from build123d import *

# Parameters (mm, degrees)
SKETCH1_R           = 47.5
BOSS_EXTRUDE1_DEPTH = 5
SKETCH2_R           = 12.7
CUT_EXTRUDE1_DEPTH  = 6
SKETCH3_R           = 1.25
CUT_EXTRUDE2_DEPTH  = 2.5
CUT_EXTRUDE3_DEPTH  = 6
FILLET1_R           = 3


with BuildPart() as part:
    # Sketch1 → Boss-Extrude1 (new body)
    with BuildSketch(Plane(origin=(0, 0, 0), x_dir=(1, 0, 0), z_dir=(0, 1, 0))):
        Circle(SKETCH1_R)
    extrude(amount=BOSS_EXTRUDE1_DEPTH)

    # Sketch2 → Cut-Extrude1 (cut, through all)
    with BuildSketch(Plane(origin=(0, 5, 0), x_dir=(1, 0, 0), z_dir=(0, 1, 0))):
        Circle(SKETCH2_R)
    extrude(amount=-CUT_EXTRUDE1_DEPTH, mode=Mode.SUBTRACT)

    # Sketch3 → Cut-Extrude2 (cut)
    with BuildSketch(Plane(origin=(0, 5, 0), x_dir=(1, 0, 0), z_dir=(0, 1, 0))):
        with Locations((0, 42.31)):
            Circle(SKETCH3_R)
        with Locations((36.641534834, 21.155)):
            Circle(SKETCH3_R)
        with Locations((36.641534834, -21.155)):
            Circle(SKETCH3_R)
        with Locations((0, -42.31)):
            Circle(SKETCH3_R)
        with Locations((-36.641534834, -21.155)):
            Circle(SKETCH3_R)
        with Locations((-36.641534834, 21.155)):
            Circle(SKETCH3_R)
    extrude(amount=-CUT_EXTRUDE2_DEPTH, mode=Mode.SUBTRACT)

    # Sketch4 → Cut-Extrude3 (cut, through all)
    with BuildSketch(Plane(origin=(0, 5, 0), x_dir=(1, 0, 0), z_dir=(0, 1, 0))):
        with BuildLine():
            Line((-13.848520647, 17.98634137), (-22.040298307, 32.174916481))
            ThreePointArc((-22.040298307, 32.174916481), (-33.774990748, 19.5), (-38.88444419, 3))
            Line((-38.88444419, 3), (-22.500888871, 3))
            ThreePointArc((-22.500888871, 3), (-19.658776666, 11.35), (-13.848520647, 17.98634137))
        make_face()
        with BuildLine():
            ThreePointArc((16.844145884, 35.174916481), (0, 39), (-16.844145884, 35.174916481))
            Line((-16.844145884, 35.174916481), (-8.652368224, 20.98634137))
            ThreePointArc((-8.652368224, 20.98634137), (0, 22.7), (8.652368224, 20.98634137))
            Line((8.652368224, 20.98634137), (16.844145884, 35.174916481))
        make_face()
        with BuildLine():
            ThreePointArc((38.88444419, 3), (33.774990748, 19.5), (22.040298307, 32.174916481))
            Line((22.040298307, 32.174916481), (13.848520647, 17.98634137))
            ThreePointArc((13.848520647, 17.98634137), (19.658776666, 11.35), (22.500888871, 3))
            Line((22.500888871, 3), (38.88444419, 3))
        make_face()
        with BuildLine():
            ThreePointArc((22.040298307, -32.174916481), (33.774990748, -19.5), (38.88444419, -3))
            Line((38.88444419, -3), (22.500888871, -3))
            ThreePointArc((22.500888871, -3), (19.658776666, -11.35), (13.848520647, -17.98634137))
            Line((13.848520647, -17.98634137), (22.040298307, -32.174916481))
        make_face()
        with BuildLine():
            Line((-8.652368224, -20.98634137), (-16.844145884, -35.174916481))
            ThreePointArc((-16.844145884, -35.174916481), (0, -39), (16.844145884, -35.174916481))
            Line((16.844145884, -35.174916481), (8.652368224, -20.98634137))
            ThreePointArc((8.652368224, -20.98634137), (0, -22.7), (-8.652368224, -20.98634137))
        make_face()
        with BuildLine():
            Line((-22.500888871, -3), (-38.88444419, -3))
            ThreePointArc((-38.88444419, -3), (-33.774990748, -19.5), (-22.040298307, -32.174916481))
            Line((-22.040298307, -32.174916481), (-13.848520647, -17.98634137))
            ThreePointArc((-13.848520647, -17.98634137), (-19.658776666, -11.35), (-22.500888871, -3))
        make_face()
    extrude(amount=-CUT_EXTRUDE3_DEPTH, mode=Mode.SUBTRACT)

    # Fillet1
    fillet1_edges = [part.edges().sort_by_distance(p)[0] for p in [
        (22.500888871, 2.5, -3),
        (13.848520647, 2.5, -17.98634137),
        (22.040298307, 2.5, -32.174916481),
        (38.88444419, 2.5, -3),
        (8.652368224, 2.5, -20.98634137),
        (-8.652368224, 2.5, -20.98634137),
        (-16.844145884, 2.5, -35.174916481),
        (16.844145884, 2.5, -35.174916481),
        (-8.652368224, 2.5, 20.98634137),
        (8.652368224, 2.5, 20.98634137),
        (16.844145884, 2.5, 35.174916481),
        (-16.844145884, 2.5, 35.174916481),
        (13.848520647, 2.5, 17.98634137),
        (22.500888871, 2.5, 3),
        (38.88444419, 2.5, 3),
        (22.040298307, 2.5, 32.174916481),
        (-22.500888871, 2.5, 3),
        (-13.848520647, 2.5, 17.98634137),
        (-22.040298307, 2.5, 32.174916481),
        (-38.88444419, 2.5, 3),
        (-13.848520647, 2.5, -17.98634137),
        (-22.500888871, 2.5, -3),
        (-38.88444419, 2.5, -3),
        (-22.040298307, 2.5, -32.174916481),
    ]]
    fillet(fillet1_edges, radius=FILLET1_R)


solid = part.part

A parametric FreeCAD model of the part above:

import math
import FreeCAD as App
import Part
import Sketcher
from FreeCAD import Vector
Q = App.Units.Quantity


def edges_at(feature, points):
    """Names of the edges that pass closest to the given points."""
    edges = feature.Shape.Edges
    near = lambda p: min(range(len(edges)), key=lambda i: edges[i].distToShape(Part.Vertex(*p))[0])
    return sorted({f"Edge{near(p) + 1}" for p in points})

doc = App.newDocument("Part")
body = doc.addObject("PartDesign::Body", "Body")

sketch1 = body.newObject("Sketcher::SketchObject", "Sketch")
sketch1.AttachmentSupport = (doc.getObject("XZ_Plane"), [""])
sketch1.MapMode = "FlatFace"
sketch1.addGeometry(Part.Circle(Vector(0, 0, 0), Vector(0, 0, 1), 47.5), False)
sketch1.addConstraint([
    Sketcher.Constraint("Coincident", 0, 3, -1, 1),
    Sketcher.Constraint("Diameter", 0, 95.0),
])
pad1 = body.newObject("PartDesign::Pad", "Pad")
pad1.Profile = sketch1
pad1.Length = 5
pad1.Reversed = True

sketch2 = body.newObject("Sketcher::SketchObject", "Sketch001")
sketch2.AttachmentSupport = (doc.getObject("XZ_Plane"), [""])
sketch2.MapMode = "FlatFace"
sketch2.AttachmentOffset = App.Placement(Vector(0, 0, -5), App.Rotation())
sketch2.addGeometry(Part.Circle(Vector(0, 0, 0), Vector(0, 0, 1), 12.7), False)
sketch2.addConstraint([
    Sketcher.Constraint("Coincident", 0, 3, -1, 1),
    Sketcher.Constraint("Diameter", 0, 25.4),
])
pocket1 = body.newObject("PartDesign::Pocket", "Pocket")
pocket1.Profile = sketch2
pocket1.Type = "ThroughAll"
pocket1.Reversed = True

sketch3 = body.newObject("Sketcher::SketchObject", "Sketch002")
sketch3.AttachmentSupport = (doc.getObject("XZ_Plane"), [""])
sketch3.MapMode = "FlatFace"
sketch3.AttachmentOffset = App.Placement(Vector(0, 0, -5), App.Rotation())
sketch3.addGeometry([
    Part.Circle(Vector(0, -42.31, 0), Vector(0, 0, 1), 1.25),
    Part.Circle(Vector(36.641535, -21.155, 0), Vector(0, 0, 1), 1.25),
    Part.Circle(Vector(36.641535, 21.155, 0), Vector(0, 0, 1), 1.25),
    Part.Circle(Vector(0, 42.31, 0), Vector(0, 0, 1), 1.25),
    Part.Circle(Vector(-36.641535, 21.155, 0), Vector(0, 0, 1), 1.25),
    Part.Circle(Vector(-36.641535, -21.155, 0), Vector(0, 0, 1), 1.25),
], False)
sketch3.addConstraint([
    Sketcher.Constraint("Equal", 0, 1),
    Sketcher.Constraint("Equal", 1, 2),
    Sketcher.Constraint("Equal", 2, 3),
    Sketcher.Constraint("Equal", 3, 4),
    Sketcher.Constraint("Equal", 4, 5),
    Sketcher.Constraint("Symmetric", 0, 3, 3, 3, -1, 1),
    Sketcher.Constraint("Symmetric", 1, 3, 4, 3, -1, 1),
    Sketcher.Constraint("Symmetric", 2, 3, 5, 3, -1, 1),
    Sketcher.Constraint("Symmetric", 2, 3, 4, 3, -2),
    Sketcher.Constraint("PointOnObject", 0, 3, -2),
    Sketcher.Constraint("Diameter", 0, 2.5),
    Sketcher.Constraint("DistanceY", 0, 3, -1, 1, 42.31),
    Sketcher.Constraint("DistanceY", 1, 3, 2, 3, 42.31),
    Sketcher.Constraint("DistanceX", 4, 3, 2, 3, 73.28307),
])
pocket2 = body.newObject("PartDesign::Pocket", "Pocket001")
pocket2.Profile = sketch3
pocket2.Length = 2.5
pocket2.Reversed = True

sketch4 = body.newObject("Sketcher::SketchObject", "Sketch003")
sketch4.AttachmentSupport = (doc.getObject("XZ_Plane"), [""])
sketch4.MapMode = "FlatFace"
sketch4.AttachmentOffset = App.Placement(Vector(0, 0, -5), App.Rotation())
sketch4.addGeometry([
    Part.LineSegment(Vector(-13.848521, -17.986341, 0), Vector(-22.040298, -32.174916, 0)),
    Part.ArcOfCircle(Part.Circle(Vector(0, 0, 0), Vector(0, 0, 1), 39), math.radians(-175.588274), math.radians(-124.411726)),
    Part.LineSegment(Vector(-38.884444, -3, 0), Vector(-22.500889, -3, 0)),
    Part.ArcOfCircle(Part.Circle(Vector(0, 0, 0), Vector(0, 0, 1), 22.7), math.radians(-172.405653), math.radians(-127.594347)),
    Part.ArcOfCircle(Part.Circle(Vector(0, 0, 0), Vector(0, 0, 1), 39), math.radians(-115.588274), math.radians(-64.411726)),
    Part.LineSegment(Vector(-16.844146, -35.174916, 0), Vector(-8.652368, -20.986341, 0)),
    Part.ArcOfCircle(Part.Circle(Vector(0, 0, 0), Vector(0, 0, 1), 22.7), math.radians(-112.405653), math.radians(-67.594347)),
    Part.LineSegment(Vector(8.652368, -20.986341, 0), Vector(16.844146, -35.174916, 0)),
    Part.ArcOfCircle(Part.Circle(Vector(0, 0, 0), Vector(0, 0, 1), 39), math.radians(-55.588274), math.radians(-4.411726)),
    Part.LineSegment(Vector(22.040298, -32.174916, 0), Vector(13.848521, -17.986341, 0)),
    Part.ArcOfCircle(Part.Circle(Vector(0, 0, 0), Vector(0, 0, 1), 22.7), math.radians(-52.405653), math.radians(-7.594347)),
    Part.LineSegment(Vector(22.500889, -3, 0), Vector(38.884444, -3, 0)),
    Part.ArcOfCircle(Part.Circle(Vector(0, 0, 0), Vector(0, 0, 1), 39), math.radians(4.411726), math.radians(55.588274)),
    Part.LineSegment(Vector(38.884444, 3, 0), Vector(22.500889, 3, 0)),
    Part.ArcOfCircle(Part.Circle(Vector(0, 0, 0), Vector(0, 0, 1), 22.7), math.radians(7.594347), math.radians(52.405653)),
    Part.LineSegment(Vector(13.848521, 17.986341, 0), Vector(22.040298, 32.174916, 0)),
    Part.LineSegment(Vector(-8.652368, 20.986341, 0), Vector(-16.844146, 35.174916, 0)),
    Part.ArcOfCircle(Part.Circle(Vector(0, 0, 0), Vector(0, 0, 1), 39), math.radians(64.411726), math.radians(115.588274)),
    Part.LineSegment(Vector(16.844146, 35.174916, 0), Vector(8.652368, 20.986341, 0)),
    Part.ArcOfCircle(Part.Circle(Vector(0, 0, 0), Vector(0, 0, 1), 22.7), math.radians(67.594347), math.radians(112.405653)),
    Part.LineSegment(Vector(-22.500889, 3, 0), Vector(-38.884444, 3, 0)),
    Part.ArcOfCircle(Part.Circle(Vector(0, 0, 0), Vector(0, 0, 1), 39), math.radians(124.411726), math.radians(175.588274)),
    Part.LineSegment(Vector(-22.040298, 32.174916, 0), Vector(-13.848521, 17.986341, 0)),
    Part.ArcOfCircle(Part.Circle(Vector(0, 0, 0), Vector(0, 0, 1), 22.7), math.radians(127.594347), math.radians(172.405653)),
], False)
sketch4.addConstraint([
    Sketcher.Constraint("Coincident", 0, 2, 1, 2),
    Sketcher.Constraint("Coincident", 1, 1, 2, 1),
    Sketcher.Constraint("Coincident", 2, 2, 3, 1),
    Sketcher.Constraint("Coincident", 3, 2, 0, 1),
    Sketcher.Constraint("Coincident", 4, 1, 5, 1),
    Sketcher.Constraint("Coincident", 5, 2, 6, 1),
    Sketcher.Constraint("Coincident", 6, 2, 7, 1),
    Sketcher.Constraint("Coincident", 7, 2, 4, 2),
    Sketcher.Constraint("Coincident", 8, 1, 9, 1),
    Sketcher.Constraint("Coincident", 9, 2, 10, 1),
    Sketcher.Constraint("Coincident", 10, 2, 11, 1),
    Sketcher.Constraint("Coincident", 11, 2, 8, 2),
    Sketcher.Constraint("Coincident", 12, 1, 13, 1),
    Sketcher.Constraint("Coincident", 13, 2, 14, 1),
    Sketcher.Constraint("Coincident", 14, 2, 15, 1),
    Sketcher.Constraint("Coincident", 15, 2, 12, 2),
    Sketcher.Constraint("Coincident", 16, 2, 17, 2),
    Sketcher.Constraint("Coincident", 17, 1, 18, 1),
    Sketcher.Constraint("Coincident", 18, 2, 19, 1),
    Sketcher.Constraint("Coincident", 19, 2, 16, 1),
    Sketcher.Constraint("Coincident", 20, 2, 21, 2),
    Sketcher.Constraint("Coincident", 21, 1, 22, 1),
    Sketcher.Constraint("Coincident", 22, 2, 23, 1),
    Sketcher.Constraint("Coincident", 23, 2, 20, 1),
    Sketcher.Constraint("Horizontal", 2),
    Sketcher.Constraint("Horizontal", 11),
    Sketcher.Constraint("Horizontal", 13),
    Sketcher.Constraint("Horizontal", 20),
    Sketcher.Constraint("Coincident", 1, 3, -1, 1),
    Sketcher.Constraint("Coincident", 3, 3, -1, 1),
    Sketcher.Constraint("Coincident", 4, 3, -1, 1),
    Sketcher.Constraint("Coincident", 6, 3, -1, 1),
    Sketcher.Constraint("Coincident", 8, 3, -1, 1),
    Sketcher.Constraint("Coincident", 10, 3, -1, 1),
    Sketcher.Constraint("Coincident", 12, 3, -1, 1),
    Sketcher.Constraint("Coincident", 14, 3, -1, 1),
    Sketcher.Constraint("Coincident", 17, 3, -1, 1),
    Sketcher.Constraint("Coincident", 19, 3, -1, 1),
    Sketcher.Constraint("Coincident", 21, 3, -1, 1),
    Sketcher.Constraint("Coincident", 23, 3, -1, 1),
    Sketcher.Constraint("Equal", 1, 4),
    Sketcher.Constraint("Equal", 3, 6),
    Sketcher.Constraint("Equal", 4, 8),
    Sketcher.Constraint("Equal", 6, 10),
    Sketcher.Constraint("Equal", 8, 12),
    Sketcher.Constraint("Equal", 10, 14),
    Sketcher.Constraint("Equal", 12, 17),
    Sketcher.Constraint("Equal", 14, 19),
    Sketcher.Constraint("Equal", 17, 21),
    Sketcher.Constraint("Equal", 19, 23),
    Sketcher.Constraint("Parallel", 0, 5),
    Sketcher.Constraint("Parallel", 7, 9),
    Sketcher.Constraint("Parallel", 5, 15),
    Sketcher.Constraint("Parallel", 9, 16),
    Sketcher.Constraint("Parallel", 15, 18),
    Sketcher.Constraint("Parallel", 16, 22),
    Sketcher.Constraint("Horizontal", 5, 2, 6, 2),
    Sketcher.Constraint("Horizontal", 4, 1, 7, 2),
    Sketcher.Constraint("Horizontal", 0, 2, 8, 1),
    Sketcher.Constraint("Horizontal", 2, 2, 10, 2),
    Sketcher.Constraint("Horizontal", 16, 2, 17, 1),
    Sketcher.Constraint("Horizontal", 13, 2, 20, 2),
    Sketcher.Constraint("Horizontal", 15, 2, 21, 1),
    Sketcher.Constraint("Vertical", 11, 2, 12, 1),
    Sketcher.Constraint("Vertical", 9, 2, 14, 2),
    Sketcher.Constraint("Vertical", 4, 1, 16, 2),
    Sketcher.Constraint("Equal", 0, 5),
    Sketcher.Constraint("Radius", 1, 39.0),
    Sketcher.Constraint("Radius", 3, 22.7),
    Sketcher.Constraint("Angle", 0, Q("-120 deg")),
    Sketcher.Constraint("DistanceY", 1, 1, -1, 1, 3.0),
    Sketcher.Constraint("DistanceY", 4, 1, 0, 2, 3.0),
])
pocket3 = body.newObject("PartDesign::Pocket", "Pocket002")
pocket3.Profile = sketch4
pocket3.Type = "ThroughAll"
pocket3.Reversed = True
doc.recompute()

fillet = body.newObject("PartDesign::Fillet", "Fillet")
fillet.Base = (pocket3, edges_at(pocket3, [
    (22.501, 2.5, -3),
    (13.849, 2.5, -17.986),
    (22.04, 2.5, -32.175),
    (38.884, 2.5, -3),
    (8.652, 2.5, -20.986),
    (-8.652, 2.5, -20.986),
    (-16.844, 2.5, -35.175),
    (16.844, 2.5, -35.175),
    (-8.652, 2.5, 20.986),
    (8.652, 2.5, 20.986),
    (16.844, 2.5, 35.175),
    (-16.844, 2.5, 35.175),
    (13.849, 2.5, 17.986),
    (22.501, 2.5, 3),
    (38.884, 2.5, 3),
    (22.04, 2.5, 32.175),
    (-22.501, 2.5, 3),
    (-13.849, 2.5, 17.986),
    (-22.04, 2.5, 32.175),
    (-38.884, 2.5, 3),
    (-13.849, 2.5, -17.986),
    (-22.501, 2.5, -3),
    (-38.884, 2.5, -3),
    (-22.04, 2.5, -32.175),
]))
fillet.Radius = 3

doc.recompute()
